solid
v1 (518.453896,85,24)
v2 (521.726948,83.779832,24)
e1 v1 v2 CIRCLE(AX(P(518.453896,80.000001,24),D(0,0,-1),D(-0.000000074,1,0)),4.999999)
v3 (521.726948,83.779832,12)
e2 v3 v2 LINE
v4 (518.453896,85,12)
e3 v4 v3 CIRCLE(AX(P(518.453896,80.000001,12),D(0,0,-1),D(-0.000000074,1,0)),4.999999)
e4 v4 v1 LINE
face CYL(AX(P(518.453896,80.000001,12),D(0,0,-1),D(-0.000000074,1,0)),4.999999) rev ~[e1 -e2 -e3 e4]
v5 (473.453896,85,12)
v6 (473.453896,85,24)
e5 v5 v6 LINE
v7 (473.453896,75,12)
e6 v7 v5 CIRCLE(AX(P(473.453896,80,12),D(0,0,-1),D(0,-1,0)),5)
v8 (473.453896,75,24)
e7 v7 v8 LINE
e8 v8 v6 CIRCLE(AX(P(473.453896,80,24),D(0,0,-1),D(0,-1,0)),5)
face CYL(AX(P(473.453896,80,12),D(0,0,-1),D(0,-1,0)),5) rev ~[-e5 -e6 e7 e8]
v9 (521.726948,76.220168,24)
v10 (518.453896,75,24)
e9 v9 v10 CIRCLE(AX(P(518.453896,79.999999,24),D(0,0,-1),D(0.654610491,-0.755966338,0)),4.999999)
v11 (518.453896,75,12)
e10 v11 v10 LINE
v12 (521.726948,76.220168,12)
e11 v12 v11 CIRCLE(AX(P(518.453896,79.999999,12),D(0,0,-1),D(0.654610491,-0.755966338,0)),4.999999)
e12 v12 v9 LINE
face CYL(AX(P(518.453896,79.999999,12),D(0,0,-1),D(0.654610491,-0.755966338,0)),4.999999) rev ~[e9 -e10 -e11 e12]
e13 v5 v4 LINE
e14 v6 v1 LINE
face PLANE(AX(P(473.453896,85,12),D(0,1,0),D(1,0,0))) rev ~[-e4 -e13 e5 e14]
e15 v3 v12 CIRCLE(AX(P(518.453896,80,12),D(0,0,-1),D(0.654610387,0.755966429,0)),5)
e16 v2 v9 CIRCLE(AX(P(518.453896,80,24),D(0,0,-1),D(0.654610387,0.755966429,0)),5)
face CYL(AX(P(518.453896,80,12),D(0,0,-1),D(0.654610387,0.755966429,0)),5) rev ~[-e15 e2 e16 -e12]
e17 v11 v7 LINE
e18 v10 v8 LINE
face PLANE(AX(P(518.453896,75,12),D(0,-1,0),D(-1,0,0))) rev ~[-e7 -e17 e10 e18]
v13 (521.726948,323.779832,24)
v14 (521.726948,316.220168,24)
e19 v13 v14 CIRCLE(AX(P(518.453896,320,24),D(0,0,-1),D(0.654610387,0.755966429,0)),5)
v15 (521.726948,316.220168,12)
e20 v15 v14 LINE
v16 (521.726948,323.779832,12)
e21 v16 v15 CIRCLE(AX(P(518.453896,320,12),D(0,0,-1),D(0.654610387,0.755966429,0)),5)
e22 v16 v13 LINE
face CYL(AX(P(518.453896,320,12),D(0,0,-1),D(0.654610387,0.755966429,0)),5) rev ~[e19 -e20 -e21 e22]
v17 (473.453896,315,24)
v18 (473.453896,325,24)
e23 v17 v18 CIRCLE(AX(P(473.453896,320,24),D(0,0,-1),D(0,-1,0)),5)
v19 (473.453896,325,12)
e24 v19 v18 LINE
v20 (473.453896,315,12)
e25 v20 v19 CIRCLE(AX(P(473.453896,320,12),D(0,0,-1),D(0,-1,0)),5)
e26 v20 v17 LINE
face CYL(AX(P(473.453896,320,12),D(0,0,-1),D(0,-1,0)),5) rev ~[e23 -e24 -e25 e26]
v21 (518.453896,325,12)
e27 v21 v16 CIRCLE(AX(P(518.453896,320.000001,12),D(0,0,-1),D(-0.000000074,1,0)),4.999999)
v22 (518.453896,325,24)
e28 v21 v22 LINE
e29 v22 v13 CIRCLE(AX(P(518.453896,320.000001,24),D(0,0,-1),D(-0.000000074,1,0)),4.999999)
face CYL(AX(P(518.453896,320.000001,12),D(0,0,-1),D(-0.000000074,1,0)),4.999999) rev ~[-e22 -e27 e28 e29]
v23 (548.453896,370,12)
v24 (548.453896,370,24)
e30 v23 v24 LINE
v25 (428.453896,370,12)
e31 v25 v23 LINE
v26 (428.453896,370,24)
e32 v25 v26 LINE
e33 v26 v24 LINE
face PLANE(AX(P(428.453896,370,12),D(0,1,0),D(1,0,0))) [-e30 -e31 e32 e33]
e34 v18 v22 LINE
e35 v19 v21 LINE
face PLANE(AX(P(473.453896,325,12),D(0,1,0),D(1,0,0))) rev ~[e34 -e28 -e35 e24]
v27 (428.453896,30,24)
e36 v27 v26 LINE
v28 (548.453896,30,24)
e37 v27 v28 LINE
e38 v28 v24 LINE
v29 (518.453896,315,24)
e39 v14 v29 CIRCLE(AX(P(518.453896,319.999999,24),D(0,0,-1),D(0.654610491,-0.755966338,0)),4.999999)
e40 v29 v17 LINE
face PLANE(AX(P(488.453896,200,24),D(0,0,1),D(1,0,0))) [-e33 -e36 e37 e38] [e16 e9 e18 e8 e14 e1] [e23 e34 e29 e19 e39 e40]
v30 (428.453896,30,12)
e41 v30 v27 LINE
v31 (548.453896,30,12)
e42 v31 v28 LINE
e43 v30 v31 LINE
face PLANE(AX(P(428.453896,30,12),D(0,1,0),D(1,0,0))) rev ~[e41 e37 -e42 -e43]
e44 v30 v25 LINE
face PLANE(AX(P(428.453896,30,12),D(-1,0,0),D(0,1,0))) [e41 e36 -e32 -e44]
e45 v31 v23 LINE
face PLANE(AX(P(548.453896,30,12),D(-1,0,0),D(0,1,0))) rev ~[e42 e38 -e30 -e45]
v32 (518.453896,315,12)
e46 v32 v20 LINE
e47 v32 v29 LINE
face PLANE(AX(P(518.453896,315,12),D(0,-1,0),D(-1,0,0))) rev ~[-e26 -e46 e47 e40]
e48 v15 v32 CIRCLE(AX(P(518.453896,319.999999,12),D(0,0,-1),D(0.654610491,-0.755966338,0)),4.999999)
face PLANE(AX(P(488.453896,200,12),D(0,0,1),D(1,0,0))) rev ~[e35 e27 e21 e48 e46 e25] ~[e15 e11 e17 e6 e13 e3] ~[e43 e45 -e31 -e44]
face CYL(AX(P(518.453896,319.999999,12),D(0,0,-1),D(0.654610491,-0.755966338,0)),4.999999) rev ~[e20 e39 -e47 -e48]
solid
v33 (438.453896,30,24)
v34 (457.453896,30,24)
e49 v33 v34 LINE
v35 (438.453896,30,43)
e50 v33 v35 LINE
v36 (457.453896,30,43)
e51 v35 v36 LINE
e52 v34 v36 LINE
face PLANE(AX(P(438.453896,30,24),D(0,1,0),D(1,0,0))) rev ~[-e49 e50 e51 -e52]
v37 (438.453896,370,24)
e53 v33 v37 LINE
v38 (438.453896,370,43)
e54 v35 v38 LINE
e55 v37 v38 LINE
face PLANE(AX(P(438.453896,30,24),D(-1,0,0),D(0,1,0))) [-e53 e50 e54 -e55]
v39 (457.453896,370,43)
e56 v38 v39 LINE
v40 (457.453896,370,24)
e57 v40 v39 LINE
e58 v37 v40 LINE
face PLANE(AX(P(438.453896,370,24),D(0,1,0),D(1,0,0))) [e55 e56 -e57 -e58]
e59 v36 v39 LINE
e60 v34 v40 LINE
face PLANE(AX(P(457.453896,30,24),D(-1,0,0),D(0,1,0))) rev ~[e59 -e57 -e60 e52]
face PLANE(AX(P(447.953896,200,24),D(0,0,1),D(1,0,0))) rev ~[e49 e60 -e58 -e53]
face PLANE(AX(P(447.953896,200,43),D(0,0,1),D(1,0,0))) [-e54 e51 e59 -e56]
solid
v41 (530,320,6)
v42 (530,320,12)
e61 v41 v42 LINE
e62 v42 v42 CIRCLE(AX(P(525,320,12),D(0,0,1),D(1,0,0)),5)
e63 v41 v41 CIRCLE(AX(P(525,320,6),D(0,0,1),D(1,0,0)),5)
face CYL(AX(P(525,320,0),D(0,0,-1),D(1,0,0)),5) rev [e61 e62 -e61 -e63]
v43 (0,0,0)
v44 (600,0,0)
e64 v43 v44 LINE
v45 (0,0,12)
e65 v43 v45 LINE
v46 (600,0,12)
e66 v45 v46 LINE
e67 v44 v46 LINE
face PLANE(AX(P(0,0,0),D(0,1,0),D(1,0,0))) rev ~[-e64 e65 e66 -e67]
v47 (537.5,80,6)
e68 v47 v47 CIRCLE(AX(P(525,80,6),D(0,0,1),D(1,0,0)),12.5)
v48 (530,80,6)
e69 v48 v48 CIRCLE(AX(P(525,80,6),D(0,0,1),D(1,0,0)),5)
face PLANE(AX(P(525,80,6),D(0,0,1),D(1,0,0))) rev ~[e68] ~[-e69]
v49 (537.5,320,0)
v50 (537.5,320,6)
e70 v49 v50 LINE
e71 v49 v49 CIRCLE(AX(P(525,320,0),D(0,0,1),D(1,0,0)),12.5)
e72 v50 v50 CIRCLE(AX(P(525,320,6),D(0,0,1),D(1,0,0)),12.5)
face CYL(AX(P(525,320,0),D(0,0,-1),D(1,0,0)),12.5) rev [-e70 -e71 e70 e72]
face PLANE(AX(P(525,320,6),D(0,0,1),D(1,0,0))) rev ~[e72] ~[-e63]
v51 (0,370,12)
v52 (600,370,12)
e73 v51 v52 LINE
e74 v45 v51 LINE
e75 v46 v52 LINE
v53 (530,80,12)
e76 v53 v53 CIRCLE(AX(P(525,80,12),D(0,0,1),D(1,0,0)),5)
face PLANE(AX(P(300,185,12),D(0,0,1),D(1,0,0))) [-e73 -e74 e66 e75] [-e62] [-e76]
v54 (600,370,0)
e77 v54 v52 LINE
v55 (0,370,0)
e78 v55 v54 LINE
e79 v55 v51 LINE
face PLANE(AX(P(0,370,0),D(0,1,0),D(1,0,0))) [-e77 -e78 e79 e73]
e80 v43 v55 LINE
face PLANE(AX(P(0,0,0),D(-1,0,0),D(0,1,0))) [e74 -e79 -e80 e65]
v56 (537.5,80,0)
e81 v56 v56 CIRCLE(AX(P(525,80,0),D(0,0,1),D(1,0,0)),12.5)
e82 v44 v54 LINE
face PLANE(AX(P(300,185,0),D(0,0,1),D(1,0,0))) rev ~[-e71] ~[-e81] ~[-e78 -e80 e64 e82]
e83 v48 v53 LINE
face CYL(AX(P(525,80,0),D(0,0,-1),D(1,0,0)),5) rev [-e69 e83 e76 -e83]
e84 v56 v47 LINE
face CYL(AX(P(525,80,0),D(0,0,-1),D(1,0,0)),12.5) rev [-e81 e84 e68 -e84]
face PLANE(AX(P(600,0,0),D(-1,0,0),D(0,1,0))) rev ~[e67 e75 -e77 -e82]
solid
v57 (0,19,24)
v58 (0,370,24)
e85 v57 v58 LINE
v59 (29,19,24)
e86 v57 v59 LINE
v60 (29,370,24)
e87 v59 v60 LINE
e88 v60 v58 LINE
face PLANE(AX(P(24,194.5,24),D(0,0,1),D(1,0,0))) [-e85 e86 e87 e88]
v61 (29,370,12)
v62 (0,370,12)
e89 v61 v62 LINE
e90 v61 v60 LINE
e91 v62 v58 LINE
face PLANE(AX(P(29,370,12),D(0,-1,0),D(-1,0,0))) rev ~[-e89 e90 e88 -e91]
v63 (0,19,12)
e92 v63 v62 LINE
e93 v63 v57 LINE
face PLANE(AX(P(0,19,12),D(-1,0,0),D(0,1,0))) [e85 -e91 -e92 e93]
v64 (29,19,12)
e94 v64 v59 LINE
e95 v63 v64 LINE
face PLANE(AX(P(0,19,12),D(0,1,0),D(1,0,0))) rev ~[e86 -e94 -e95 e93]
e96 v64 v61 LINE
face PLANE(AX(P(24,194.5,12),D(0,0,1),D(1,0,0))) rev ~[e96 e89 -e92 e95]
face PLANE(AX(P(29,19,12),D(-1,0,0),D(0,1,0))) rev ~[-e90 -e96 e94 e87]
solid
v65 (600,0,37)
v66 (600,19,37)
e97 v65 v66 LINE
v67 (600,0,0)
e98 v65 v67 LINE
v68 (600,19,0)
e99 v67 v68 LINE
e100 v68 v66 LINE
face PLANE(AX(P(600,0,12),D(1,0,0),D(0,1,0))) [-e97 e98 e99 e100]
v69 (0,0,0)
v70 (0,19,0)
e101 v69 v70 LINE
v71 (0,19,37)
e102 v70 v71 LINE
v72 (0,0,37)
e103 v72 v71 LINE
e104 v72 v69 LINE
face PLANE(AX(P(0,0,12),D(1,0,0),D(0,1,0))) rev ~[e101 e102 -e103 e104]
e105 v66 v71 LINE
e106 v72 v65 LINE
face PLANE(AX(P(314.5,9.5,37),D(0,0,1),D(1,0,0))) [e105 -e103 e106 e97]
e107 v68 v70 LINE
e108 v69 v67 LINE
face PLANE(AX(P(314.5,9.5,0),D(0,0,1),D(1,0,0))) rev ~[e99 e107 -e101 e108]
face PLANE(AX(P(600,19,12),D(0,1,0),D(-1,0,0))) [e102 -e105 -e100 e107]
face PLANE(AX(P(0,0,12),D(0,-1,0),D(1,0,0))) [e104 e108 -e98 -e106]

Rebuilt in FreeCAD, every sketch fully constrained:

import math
import FreeCAD as App
import Part
import Sketcher

V = App.Vector


def add_polygon(sketch, points):
    """Adds a closed chain of lines whose ends are joined by coincident constraints."""
    first, n = sketch.GeometryCount, len(points)
    for a, b in zip(points, points[1:] + points[:1]):
        sketch.addGeometry(Part.LineSegment(App.Vector(*a, 0), App.Vector(*b, 0)), False)
    for i in range(n):
        sketch.addConstraint(Sketcher.Constraint("Coincident", first + i, 2, first + (i + 1) % n, 1))

doc = App.newDocument("Part")
params = doc.addObject("Spreadsheet::Sheet", "Params")
for row, (alias, value) in enumerate([
    ("sketch1_diameter", "10 mm"),
    ("sketch1_width", "600 mm"),
    ("sketch1_height", "370 mm"),
    ("pad1_length", "12 mm"),
    ("sketch2_diameter", "25 mm"),
    ("sketch2_diameter2", "10 mm"),
    ("pocket1_length", "6 mm"),
    ("sketch3_radius", "5 mm"),
    ("sketch3_width", "120 mm"),
    ("sketch3_width2", "45 mm"),
    ("sketch3_width3", "29 mm"),
    ("sketch3_height", "340 mm"),
    ("pad2_length", "12 mm"),
    ("sketch4_width", "19 mm"),
    ("sketch4_height", "340 mm"),
    ("pad3_length", "19 mm"),
    ("sketch5_width", "600 mm"),
    ("sketch5_height", "19 mm"),
    ("pad4_length", "25 mm"),
    ("pad4_length2", "12 mm"),
], start=1):
    params.set(f"A{row}", alias)
    params.set(f"B{row}", "=" + value)
    params.setAlias(f"B{row}", alias)

body = doc.addObject("PartDesign::Body", "Body")

sketch1 = body.newObject("Sketcher::SketchObject", "Sketch")
sketch1.AttachmentSupport = (doc.getObject("XY_Plane"), [""])
sketch1.MapMode = "FlatFace"
add_polygon(sketch1, [(0, 370), (0, 0), (600, 0), (600, 370)])
sketch1.addGeometry(Part.Circle(V(525, 80, 0), V(0, 0, 1), 5), False)
sketch1.addGeometry(Part.Circle(V(525, 320, 0), V(0, 0, 1), 5), False)
sketch1.addConstraint([
    Sketcher.Constraint("Vertical", 0),
    Sketcher.Constraint("Horizontal", 1),
    Sketcher.Constraint("Vertical", 2),
    Sketcher.Constraint("Horizontal", 3),
    Sketcher.Constraint("Coincident", 0, 2, -1, 1),
    Sketcher.Constraint("Equal", 4, 5),
    Sketcher.Constraint("Vertical", 4, 3, 5, 3),
    Sketcher.Constraint("Diameter", 4, 10.0),
    Sketcher.Constraint("DistanceX", 1, 1, 1, 2, 600.0),
    Sketcher.Constraint("DistanceY", 0, 2, 0, 1, 370.0),
    Sketcher.Constraint("DistanceX", -1, 1, 4, 3, 525.0),
    Sketcher.Constraint("DistanceY", -1, 1, 4, 3, 80.0),
    Sketcher.Constraint("DistanceY", -1, 1, 5, 3, 320.0),
])
sketch1.setExpression("Constraints[11]", "Params.sketch1_diameter")
sketch1.setExpression("Constraints[12]", "Params.sketch1_width")
sketch1.setExpression("Constraints[13]", "Params.sketch1_height")
pad1 = body.newObject("PartDesign::Pad", "Pad")
pad1.Profile = sketch1
pad1.setExpression("Length", "Params.pad1_length")

sketch2 = body.newObject("Sketcher::SketchObject", "Sketch001")
sketch2.AttachmentSupport = (doc.getObject("XY_Plane"), [""])
sketch2.MapMode = "FlatFace"
sketch2.addGeometry([
    Part.Circle(V(525, 80, 0), V(0, 0, 1), 12.5),
    Part.Circle(V(525, 80, 0), V(0, 0, 1), 5),
    Part.Circle(V(525, 320, 0), V(0, 0, 1), 12.5),
    Part.Circle(V(525, 320, 0), V(0, 0, 1), 5),
], False)
sketch2.addConstraint([
    Sketcher.Constraint("Coincident", 1, 3, 0, 3),
    Sketcher.Constraint("Coincident", 3, 3, 2, 3),
    Sketcher.Constraint("Equal", 0, 2),
    Sketcher.Constraint("Equal", 1, 3),
    Sketcher.Constraint("Vertical", 1, 3, 2, 3),
    Sketcher.Constraint("Diameter", 0, 25.0),
    Sketcher.Constraint("Diameter", 1, 10.0),
    Sketcher.Constraint("DistanceX", -1, 1, 0, 3, 525.0),
    Sketcher.Constraint("DistanceY", -1, 1, 0, 3, 80.0),
    Sketcher.Constraint("DistanceY", -1, 1, 2, 3, 320.0),
])
sketch2.setExpression("Constraints[5]", "Params.sketch2_diameter")
sketch2.setExpression("Constraints[6]", "Params.sketch2_diameter2")
pocket1 = body.newObject("PartDesign::Pocket", "Pocket")
pocket1.Profile = sketch2
pocket1.setExpression("Length", "Params.pocket1_length")
pocket1.Reversed = True
body2 = doc.addObject("PartDesign::Body", "Body001")
body2.AllowCompound = True

sketch3 = body2.newObject("Sketcher::SketchObject", "Sketch002")
sketch3.AttachmentSupport = (doc.getObject("XY_Plane001"), [""])
sketch3.MapMode = "FlatFace"
sketch3.AttachmentOffset = App.Placement(V(0, 0, 12), App.Rotation())
add_polygon(sketch3, [(428.453896, 370), (428.453896, 30), (548.453896, 30), (548.453896, 370)])
sketch3.addGeometry(Part.LineSegment(V(518.453896, 75, 0), V(473.453896, 75, 0)), False)
sketch3.addGeometry(Part.ArcOfCircle(Part.Circle(V(473.453896, 80, 0), V(0, 0, 1), 5), math.radians(90), math.radians(270)), False)
sketch3.addGeometry(Part.LineSegment(V(473.453896, 85, 0), V(518.453896, 85, 0)), False)
sketch3.addGeometry(Part.ArcOfCircle(Part.Circle(V(518.453896, 80.000001, 0), V(0, 0, 1), 4.999999), math.radians(49.109878), math.radians(90.000004)), False)
sketch3.addGeometry(Part.ArcOfCircle(Part.Circle(V(518.453896, 80, 0), V(0, 0, 1), 5), math.radians(-49.109886), math.radians(49.109886)), False)
sketch3.addGeometry(Part.ArcOfCircle(Part.Circle(V(518.453896, 79.999999, 0), V(0, 0, 1), 4.999999), math.radians(-90.000004), math.radians(-49.109878)), False)
sketch3.addGeometry(Part.ArcOfCircle(Part.Circle(V(518.453896, 319.999999, 0), V(0, 0, 1), 4.999999), math.radians(-90.000004), math.radians(-49.109878)), False)
sketch3.addGeometry(Part.LineSegment(V(518.453896, 315, 0), V(473.453896, 315, 0)), False)
sketch3.addGeometry(Part.ArcOfCircle(Part.Circle(V(473.453896, 320, 0), V(0, 0, 1), 5), math.radians(90), math.radians(270)), False)
sketch3.addGeometry(Part.LineSegment(V(473.453896, 325, 0), V(518.453896, 325, 0)), False)
sketch3.addGeometry(Part.ArcOfCircle(Part.Circle(V(518.453896, 320.000001, 0), V(0, 0, 1), 4.999999), math.radians(49.109878), math.radians(90.000004)), False)
sketch3.addGeometry(Part.ArcOfCircle(Part.Circle(V(518.453896, 320, 0), V(0, 0, 1), 5), math.radians(-49.109886), math.radians(49.109886)), False)
add_polygon(sketch3, [(29, 19), (29, 370), (0, 370), (0, 19)])
sketch3.addConstraint([
    Sketcher.Constraint("Tangent", 4, 2, 5, 2),
    Sketcher.Constraint("Tangent", 5, 1, 6, 1),
    Sketcher.Constraint("Tangent", 6, 2, 7, 2),
    Sketcher.Constraint("Tangent", 7, 1, 8, 2),
    Sketcher.Constraint("Tangent", 8, 1, 9, 2),
    Sketcher.Constraint("Tangent", 9, 1, 4, 1),
    Sketcher.Constraint("Tangent", 10, 1, 11, 1),
    Sketcher.Constraint("Tangent", 11, 2, 12, 2),
    Sketcher.Constraint("Tangent", 12, 1, 13, 1),
    Sketcher.Constraint("Tangent", 13, 2, 14, 2),
    Sketcher.Constraint("Tangent", 14, 1, 15, 2),
    Sketcher.Constraint("Tangent", 15, 1, 10, 2),
    Sketcher.Constraint("Vertical", 0),
    Sketcher.Constraint("Horizontal", 1),
    Sketcher.Constraint("Vertical", 2),
    Sketcher.Constraint("Horizontal", 3),
    Sketcher.Constraint("Horizontal", 4),
    Sketcher.Constraint("Horizontal", 6),
    Sketcher.Constraint("Horizontal", 11),
    Sketcher.Constraint("Horizontal", 13),
    Sketcher.Constraint("Vertical", 16),
    Sketcher.Constraint("Horizontal", 17),
    Sketcher.Constraint("Vertical", 18),
    Sketcher.Constraint("Horizontal", 19),
    Sketcher.Constraint("Coincident", 9, 3, 7, 3),
    Sketcher.Constraint("Coincident", 14, 3, 10, 3),
    Sketcher.Constraint("Equal", 9, 10),
    Sketcher.Constraint("PointOnObject", 17, 2, -2),
    Sketcher.Constraint("Horizontal", 3, 2, 16, 2),
    Sketcher.Constraint("Vertical", 9, 3, 10, 3),
    Sketcher.Constraint("Vertical", 5, 3, 12, 3),
    Sketcher.Constraint("Vertical", 7, 1, 8, 1),
    Sketcher.Constraint("Vertical", 8, 1, 14, 1),
    Sketcher.Constraint("Vertical", 14, 1, 15, 1),
    Sketcher.Constraint("Radius", 5, 5.0),
    Sketcher.Constraint("DistanceX", 1, 1, 1, 2, 120.0),
    Sketcher.Constraint("DistanceX", 4, 2, 4, 1, 45.0),
    Sketcher.Constraint("DistanceX", 17, 2, 17, 1, 29.0),
    Sketcher.Constraint("DistanceY", 0, 2, 0, 1, 340.0),
    Sketcher.Constraint("DistanceY", 16, 1, 16, 2, 351.0),
    Sketcher.Constraint("DistanceY", -1, 1, 5, 3, 80.0),
    Sketcher.Constraint("DistanceY", -1, 1, 10, 3, 319.999999),
    Sketcher.Constraint("DistanceY", -1, 1, 0, 2, 30.0),
    Sketcher.Constraint("DistanceX", 0, 2, 5, 3, 45.0),
    Sketcher.Constraint("DistanceY", -1, 1, 7, 1, 83.779832),
    Sketcher.Constraint("DistanceX", -1, 1, 8, 1, 521.726948),
])
sketch3.setExpression("Constraints[42]", "Params.sketch3_radius")
sketch3.setExpression("Constraints[43]", "Params.sketch3_width")
sketch3.setExpression("Constraints[44]", "Params.sketch3_width2")
sketch3.setExpression("Constraints[45]", "Params.sketch3_width3")
sketch3.setExpression("Constraints[46]", "Params.sketch3_height")
pad2 = body2.newObject("PartDesign::Pad", "Pad001")
pad2.Profile = sketch3
pad2.setExpression("Length", "Params.pad2_length")
body3 = doc.addObject("PartDesign::Body", "Body002")

sketch4 = body3.newObject("Sketcher::SketchObject", "Sketch003")
sketch4.AttachmentSupport = (doc.getObject("XY_Plane002"), [""])
sketch4.MapMode = "FlatFace"
sketch4.AttachmentOffset = App.Placement(V(0, 0, 24), App.Rotation())
add_polygon(sketch4, [(438.453896, 370), (438.453896, 30), (457.453896, 30), (457.453896, 370)])
sketch4.addConstraint([
    Sketcher.Constraint("Vertical", 0),
    Sketcher.Constraint("Horizontal", 1),
    Sketcher.Constraint("Vertical", 2),
    Sketcher.Constraint("Horizontal", 3),
    Sketcher.Constraint("DistanceX", 1, 1, 1, 2, 19.0),
    Sketcher.Constraint("DistanceY", 0, 2, 0, 1, 340.0),
    Sketcher.Constraint("DistanceY", -1, 1, 0, 2, 30.0),
    Sketcher.Constraint("DistanceX", -1, 1, 0, 2, 438.453896),
])
sketch4.setExpression("Constraints[8]", "Params.sketch4_width")
sketch4.setExpression("Constraints[9]", "Params.sketch4_height")
pad3 = body3.newObject("PartDesign::Pad", "Pad002")
pad3.Profile = sketch4
pad3.setExpression("Length", "Params.pad3_length")
body4 = doc.addObject("PartDesign::Body", "Body003")

sketch5 = body4.newObject("Sketcher::SketchObject", "Sketch004")
sketch5.AttachmentSupport = (doc.getObject("XY_Plane003"), [""])
sketch5.MapMode = "FlatFace"
sketch5.AttachmentOffset = App.Placement(V(0, 0, 12), App.Rotation())
add_polygon(sketch5, [(600, 0), (600, 19), (0, 19), (0, 0)])
sketch5.addConstraint([
    Sketcher.Constraint("Vertical", 0),
    Sketcher.Constraint("Horizontal", 1),
    Sketcher.Constraint("Vertical", 2),
    Sketcher.Constraint("Horizontal", 3),
    Sketcher.Constraint("Coincident", 2, 2, -1, 1),
    Sketcher.Constraint("DistanceX", 1, 2, 1, 1, 600.0),
    Sketcher.Constraint("DistanceY", 0, 1, 0, 2, 19.0),
])
sketch5.setExpression("Constraints[9]", "Params.sketch5_width")
sketch5.setExpression("Constraints[10]", "Params.sketch5_height")
pad4 = body4.newObject("PartDesign::Pad", "Pad003")
pad4.Profile = sketch5
pad4.Type = "TwoLengths"
pad4.setExpression("Length", "Params.pad4_length")
pad4.setExpression("Length2", "Params.pad4_length2")

doc.recompute()
